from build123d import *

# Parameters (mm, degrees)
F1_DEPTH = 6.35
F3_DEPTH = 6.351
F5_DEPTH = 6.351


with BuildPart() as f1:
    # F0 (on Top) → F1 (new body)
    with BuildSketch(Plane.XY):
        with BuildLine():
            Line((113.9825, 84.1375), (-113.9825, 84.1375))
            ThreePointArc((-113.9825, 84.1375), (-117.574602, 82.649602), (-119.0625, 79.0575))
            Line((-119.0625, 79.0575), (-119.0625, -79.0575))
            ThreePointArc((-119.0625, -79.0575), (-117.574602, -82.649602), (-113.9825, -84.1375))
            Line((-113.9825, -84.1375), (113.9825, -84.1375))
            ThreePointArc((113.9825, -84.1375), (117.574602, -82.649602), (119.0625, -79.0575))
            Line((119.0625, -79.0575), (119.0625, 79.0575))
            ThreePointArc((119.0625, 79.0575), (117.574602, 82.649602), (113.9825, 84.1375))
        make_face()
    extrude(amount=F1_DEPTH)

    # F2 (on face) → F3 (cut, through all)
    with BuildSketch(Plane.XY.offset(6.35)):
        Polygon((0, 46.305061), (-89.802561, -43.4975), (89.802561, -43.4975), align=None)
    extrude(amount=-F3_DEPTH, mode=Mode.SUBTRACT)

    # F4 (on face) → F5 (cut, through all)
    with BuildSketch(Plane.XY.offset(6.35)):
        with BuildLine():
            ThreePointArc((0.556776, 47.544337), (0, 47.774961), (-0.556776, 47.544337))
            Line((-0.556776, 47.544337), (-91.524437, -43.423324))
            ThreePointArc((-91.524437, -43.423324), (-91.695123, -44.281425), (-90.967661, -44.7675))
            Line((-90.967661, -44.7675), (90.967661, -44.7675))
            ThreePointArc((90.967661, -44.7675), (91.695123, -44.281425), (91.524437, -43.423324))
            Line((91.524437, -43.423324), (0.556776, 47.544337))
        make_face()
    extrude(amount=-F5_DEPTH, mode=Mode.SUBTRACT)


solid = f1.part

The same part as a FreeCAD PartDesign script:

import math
import FreeCAD as App
import Part
import Sketcher

V = App.Vector
Q = App.Units.Quantity


def add_polygon(sketch, points):
    """Adds a closed chain of lines whose ends are joined by coincident constraints."""
    first, n = sketch.GeometryCount, len(points)
    for a, b in zip(points, points[1:] + points[:1]):
        sketch.addGeometry(Part.LineSegment(App.Vector(*a, 0), App.Vector(*b, 0)), False)
    for i in range(n):
        sketch.addConstraint(Sketcher.Constraint("Coincident", first + i, 2, first + (i + 1) % n, 1))

doc = App.newDocument("Part")
body = doc.addObject("PartDesign::Body", "Body")

# Sketch on XY plane
sketch1 = body.newObject("Sketcher::SketchObject", "Sketch")
sketch1.AttachmentSupport = (doc.getObject("XY_Plane"), [""])
sketch1.MapMode = "FlatFace"
sketch1.addGeometry([
    Part.LineSegment(V(113.9825, 84.1375, 0), V(-113.9825, 84.1375, 0)),  # 0
    Part.ArcOfCircle(Part.Circle(V(-113.982498, 79.057498, 0), V(0, 0, 1), 5.080002), math.radians(90.000017), math.radians(179.999983)),  # 1
    Part.LineSegment(V(-119.0625, 79.0575, 0), V(-119.0625, -79.0575, 0)),  # 2
    Part.ArcOfCircle(Part.Circle(V(-113.982498, -79.057498, 0), V(0, 0, 1), 5.080002), math.radians(-179.999983), math.radians(-90.000017)),  # 3
    Part.LineSegment(V(-113.9825, -84.1375, 0), V(113.9825, -84.1375, 0)),  # 4
    Part.ArcOfCircle(Part.Circle(V(113.982498, -79.057498, 0), V(0, 0, 1), 5.080002), math.radians(-89.999983), math.radians(-0.000017)),  # 5
    Part.LineSegment(V(119.0625, -79.0575, 0), V(119.0625, 79.0575, 0)),  # 6
    Part.ArcOfCircle(Part.Circle(V(113.982498, 79.057498, 0), V(0, 0, 1), 5.080002), math.radians(0.000017), math.radians(89.999983)),  # 7
], False)
sketch1.addConstraint([
    Sketcher.Constraint("Tangent", 0, 2, 1, 1),
    Sketcher.Constraint("Tangent", 1, 2, 2, 1),
    Sketcher.Constraint("Tangent", 2, 2, 3, 1),
    Sketcher.Constraint("Tangent", 3, 2, 4, 1),
    Sketcher.Constraint("Tangent", 4, 2, 5, 1),
    Sketcher.Constraint("Tangent", 5, 2, 6, 1),
    Sketcher.Constraint("Tangent", 6, 2, 7, 1),
    Sketcher.Constraint("Tangent", 7, 2, 0, 1),
    Sketcher.Constraint("Horizontal", 0),
    Sketcher.Constraint("Vertical", 2),
    Sketcher.Constraint("Horizontal", 4),
    Sketcher.Constraint("Vertical", 6),
    Sketcher.Constraint("Equal", 1, 3),
    Sketcher.Constraint("Equal", 3, 5),
    Sketcher.Constraint("Equal", 5, 7),
    Sketcher.Constraint("Symmetric", 1, 3, 5, 3, -1, 1),
    Sketcher.Constraint("Radius", 1, Q("0.2000001 in")),
    Sketcher.Constraint("DistanceX", 0, 2, 0, 1, Q("8.975 in")),
    Sketcher.Constraint("DistanceY", 2, 2, 2, 1, Q("6.225 in")),
])
pad1 = body.newObject("PartDesign::Pad", "Pad")
pad1.Profile = sketch1
pad1.Length = Q("0.25 in")

# Sketch on XY plane
sketch2 = body.newObject("Sketcher::SketchObject", "Sketch001")
sketch2.AttachmentSupport = (doc.getObject("XY_Plane"), [""])
sketch2.MapMode = "FlatFace"
sketch2.AttachmentOffset = App.Placement(V(0, 0, 0.25 * 25.4), App.Rotation())
add_polygon(sketch2, [(0, 46.305061), (-89.802561, -43.4975), (89.802561, -43.4975)])  # lines 0-2
sketch2.addConstraint([
    Sketcher.Constraint("Horizontal", 1),
    Sketcher.Constraint("PointOnObject", 2, 2, -2),
    Sketcher.Constraint("Perpendicular", 0, 2),
    Sketcher.Constraint("Equal", 0, 2),
    Sketcher.Constraint("Distance", 0, Q("5 in")),
    Sketcher.Constraint("DistanceY", 0, 2, -1, 1, Q("1.7125 in")),
])
pocket1 = body.newObject("PartDesign::Pocket", "Pocket")
pocket1.Profile = sketch2
pocket1.Type = "ThroughAll"

# Sketch on XY plane
sketch3 = body.newObject("Sketcher::SketchObject", "Sketch002")
sketch3.AttachmentSupport = (doc.getObject("XY_Plane"), [""])
sketch3.MapMode = "FlatFace"
sketch3.AttachmentOffset = App.Placement(V(0, 0, 0.25 * 25.4), App.Rotation())
sketch3.addGeometry([
    Part.ArcOfCircle(Part.Circle(V(0, 46.98756, 0), V(0, 0, 1), 0.787401), math.radians(45.00003), math.radians(134.99997)),  # 0
    Part.LineSegment(V(-0.556776, 47.544337, 0), V(-91.524437, -43.423324, 0)),  # 1
    Part.ArcOfCircle(Part.Circle(V(-90.96766, -43.980099, 0), V(0, 0, 1), 0.787401), math.radians(135.000084), math.radians(269.999921)),  # 2
    Part.LineSegment(V(-90.967661, -44.7675, 0), V(90.967661, -44.7675, 0)),  # 3
    Part.ArcOfCircle(Part.Circle(V(90.96766, -43.980099, 0), V(0, 0, 1), 0.787401), math.radians(-89.999921), math.radians(44.999916)),  # 4
    Part.LineSegment(V(91.524437, -43.423324, 0), V(0.556776, 47.544337, 0)),  # 5
], False)
sketch3.addConstraint([
    Sketcher.Constraint("Tangent", 0, 2, 1, 1),
    Sketcher.Constraint("Tangent", 1, 2, 2, 1),
    Sketcher.Constraint("Tangent", 2, 2, 3, 1),
    Sketcher.Constraint("Tangent", 3, 2, 4, 1),
    Sketcher.Constraint("Tangent", 4, 2, 5, 1),
    Sketcher.Constraint("Tangent", 5, 2, 0, 1),
    Sketcher.Constraint("Horizontal", 3),
    Sketcher.Constraint("Equal", 0, 2),
    Sketcher.Constraint("Equal", 2, 4),
    Sketcher.Constraint("Symmetric", 1, 2, 4, 2, -2),
    Sketcher.Constraint("Perpendicular", 1, 5),
    Sketcher.Constraint("Radius", 0, Q("0.031 in")),
    Sketcher.Constraint("DistanceY", 2, 3, -1, 1, Q("1.7315 in")),
    Sketcher.Constraint("Distance", 1, 128.6477),
])
pocket2 = body.newObject("PartDesign::Pocket", "Pocket001")
pocket2.Profile = sketch3
pocket2.Type = "ThroughAll"

doc.recompute()
